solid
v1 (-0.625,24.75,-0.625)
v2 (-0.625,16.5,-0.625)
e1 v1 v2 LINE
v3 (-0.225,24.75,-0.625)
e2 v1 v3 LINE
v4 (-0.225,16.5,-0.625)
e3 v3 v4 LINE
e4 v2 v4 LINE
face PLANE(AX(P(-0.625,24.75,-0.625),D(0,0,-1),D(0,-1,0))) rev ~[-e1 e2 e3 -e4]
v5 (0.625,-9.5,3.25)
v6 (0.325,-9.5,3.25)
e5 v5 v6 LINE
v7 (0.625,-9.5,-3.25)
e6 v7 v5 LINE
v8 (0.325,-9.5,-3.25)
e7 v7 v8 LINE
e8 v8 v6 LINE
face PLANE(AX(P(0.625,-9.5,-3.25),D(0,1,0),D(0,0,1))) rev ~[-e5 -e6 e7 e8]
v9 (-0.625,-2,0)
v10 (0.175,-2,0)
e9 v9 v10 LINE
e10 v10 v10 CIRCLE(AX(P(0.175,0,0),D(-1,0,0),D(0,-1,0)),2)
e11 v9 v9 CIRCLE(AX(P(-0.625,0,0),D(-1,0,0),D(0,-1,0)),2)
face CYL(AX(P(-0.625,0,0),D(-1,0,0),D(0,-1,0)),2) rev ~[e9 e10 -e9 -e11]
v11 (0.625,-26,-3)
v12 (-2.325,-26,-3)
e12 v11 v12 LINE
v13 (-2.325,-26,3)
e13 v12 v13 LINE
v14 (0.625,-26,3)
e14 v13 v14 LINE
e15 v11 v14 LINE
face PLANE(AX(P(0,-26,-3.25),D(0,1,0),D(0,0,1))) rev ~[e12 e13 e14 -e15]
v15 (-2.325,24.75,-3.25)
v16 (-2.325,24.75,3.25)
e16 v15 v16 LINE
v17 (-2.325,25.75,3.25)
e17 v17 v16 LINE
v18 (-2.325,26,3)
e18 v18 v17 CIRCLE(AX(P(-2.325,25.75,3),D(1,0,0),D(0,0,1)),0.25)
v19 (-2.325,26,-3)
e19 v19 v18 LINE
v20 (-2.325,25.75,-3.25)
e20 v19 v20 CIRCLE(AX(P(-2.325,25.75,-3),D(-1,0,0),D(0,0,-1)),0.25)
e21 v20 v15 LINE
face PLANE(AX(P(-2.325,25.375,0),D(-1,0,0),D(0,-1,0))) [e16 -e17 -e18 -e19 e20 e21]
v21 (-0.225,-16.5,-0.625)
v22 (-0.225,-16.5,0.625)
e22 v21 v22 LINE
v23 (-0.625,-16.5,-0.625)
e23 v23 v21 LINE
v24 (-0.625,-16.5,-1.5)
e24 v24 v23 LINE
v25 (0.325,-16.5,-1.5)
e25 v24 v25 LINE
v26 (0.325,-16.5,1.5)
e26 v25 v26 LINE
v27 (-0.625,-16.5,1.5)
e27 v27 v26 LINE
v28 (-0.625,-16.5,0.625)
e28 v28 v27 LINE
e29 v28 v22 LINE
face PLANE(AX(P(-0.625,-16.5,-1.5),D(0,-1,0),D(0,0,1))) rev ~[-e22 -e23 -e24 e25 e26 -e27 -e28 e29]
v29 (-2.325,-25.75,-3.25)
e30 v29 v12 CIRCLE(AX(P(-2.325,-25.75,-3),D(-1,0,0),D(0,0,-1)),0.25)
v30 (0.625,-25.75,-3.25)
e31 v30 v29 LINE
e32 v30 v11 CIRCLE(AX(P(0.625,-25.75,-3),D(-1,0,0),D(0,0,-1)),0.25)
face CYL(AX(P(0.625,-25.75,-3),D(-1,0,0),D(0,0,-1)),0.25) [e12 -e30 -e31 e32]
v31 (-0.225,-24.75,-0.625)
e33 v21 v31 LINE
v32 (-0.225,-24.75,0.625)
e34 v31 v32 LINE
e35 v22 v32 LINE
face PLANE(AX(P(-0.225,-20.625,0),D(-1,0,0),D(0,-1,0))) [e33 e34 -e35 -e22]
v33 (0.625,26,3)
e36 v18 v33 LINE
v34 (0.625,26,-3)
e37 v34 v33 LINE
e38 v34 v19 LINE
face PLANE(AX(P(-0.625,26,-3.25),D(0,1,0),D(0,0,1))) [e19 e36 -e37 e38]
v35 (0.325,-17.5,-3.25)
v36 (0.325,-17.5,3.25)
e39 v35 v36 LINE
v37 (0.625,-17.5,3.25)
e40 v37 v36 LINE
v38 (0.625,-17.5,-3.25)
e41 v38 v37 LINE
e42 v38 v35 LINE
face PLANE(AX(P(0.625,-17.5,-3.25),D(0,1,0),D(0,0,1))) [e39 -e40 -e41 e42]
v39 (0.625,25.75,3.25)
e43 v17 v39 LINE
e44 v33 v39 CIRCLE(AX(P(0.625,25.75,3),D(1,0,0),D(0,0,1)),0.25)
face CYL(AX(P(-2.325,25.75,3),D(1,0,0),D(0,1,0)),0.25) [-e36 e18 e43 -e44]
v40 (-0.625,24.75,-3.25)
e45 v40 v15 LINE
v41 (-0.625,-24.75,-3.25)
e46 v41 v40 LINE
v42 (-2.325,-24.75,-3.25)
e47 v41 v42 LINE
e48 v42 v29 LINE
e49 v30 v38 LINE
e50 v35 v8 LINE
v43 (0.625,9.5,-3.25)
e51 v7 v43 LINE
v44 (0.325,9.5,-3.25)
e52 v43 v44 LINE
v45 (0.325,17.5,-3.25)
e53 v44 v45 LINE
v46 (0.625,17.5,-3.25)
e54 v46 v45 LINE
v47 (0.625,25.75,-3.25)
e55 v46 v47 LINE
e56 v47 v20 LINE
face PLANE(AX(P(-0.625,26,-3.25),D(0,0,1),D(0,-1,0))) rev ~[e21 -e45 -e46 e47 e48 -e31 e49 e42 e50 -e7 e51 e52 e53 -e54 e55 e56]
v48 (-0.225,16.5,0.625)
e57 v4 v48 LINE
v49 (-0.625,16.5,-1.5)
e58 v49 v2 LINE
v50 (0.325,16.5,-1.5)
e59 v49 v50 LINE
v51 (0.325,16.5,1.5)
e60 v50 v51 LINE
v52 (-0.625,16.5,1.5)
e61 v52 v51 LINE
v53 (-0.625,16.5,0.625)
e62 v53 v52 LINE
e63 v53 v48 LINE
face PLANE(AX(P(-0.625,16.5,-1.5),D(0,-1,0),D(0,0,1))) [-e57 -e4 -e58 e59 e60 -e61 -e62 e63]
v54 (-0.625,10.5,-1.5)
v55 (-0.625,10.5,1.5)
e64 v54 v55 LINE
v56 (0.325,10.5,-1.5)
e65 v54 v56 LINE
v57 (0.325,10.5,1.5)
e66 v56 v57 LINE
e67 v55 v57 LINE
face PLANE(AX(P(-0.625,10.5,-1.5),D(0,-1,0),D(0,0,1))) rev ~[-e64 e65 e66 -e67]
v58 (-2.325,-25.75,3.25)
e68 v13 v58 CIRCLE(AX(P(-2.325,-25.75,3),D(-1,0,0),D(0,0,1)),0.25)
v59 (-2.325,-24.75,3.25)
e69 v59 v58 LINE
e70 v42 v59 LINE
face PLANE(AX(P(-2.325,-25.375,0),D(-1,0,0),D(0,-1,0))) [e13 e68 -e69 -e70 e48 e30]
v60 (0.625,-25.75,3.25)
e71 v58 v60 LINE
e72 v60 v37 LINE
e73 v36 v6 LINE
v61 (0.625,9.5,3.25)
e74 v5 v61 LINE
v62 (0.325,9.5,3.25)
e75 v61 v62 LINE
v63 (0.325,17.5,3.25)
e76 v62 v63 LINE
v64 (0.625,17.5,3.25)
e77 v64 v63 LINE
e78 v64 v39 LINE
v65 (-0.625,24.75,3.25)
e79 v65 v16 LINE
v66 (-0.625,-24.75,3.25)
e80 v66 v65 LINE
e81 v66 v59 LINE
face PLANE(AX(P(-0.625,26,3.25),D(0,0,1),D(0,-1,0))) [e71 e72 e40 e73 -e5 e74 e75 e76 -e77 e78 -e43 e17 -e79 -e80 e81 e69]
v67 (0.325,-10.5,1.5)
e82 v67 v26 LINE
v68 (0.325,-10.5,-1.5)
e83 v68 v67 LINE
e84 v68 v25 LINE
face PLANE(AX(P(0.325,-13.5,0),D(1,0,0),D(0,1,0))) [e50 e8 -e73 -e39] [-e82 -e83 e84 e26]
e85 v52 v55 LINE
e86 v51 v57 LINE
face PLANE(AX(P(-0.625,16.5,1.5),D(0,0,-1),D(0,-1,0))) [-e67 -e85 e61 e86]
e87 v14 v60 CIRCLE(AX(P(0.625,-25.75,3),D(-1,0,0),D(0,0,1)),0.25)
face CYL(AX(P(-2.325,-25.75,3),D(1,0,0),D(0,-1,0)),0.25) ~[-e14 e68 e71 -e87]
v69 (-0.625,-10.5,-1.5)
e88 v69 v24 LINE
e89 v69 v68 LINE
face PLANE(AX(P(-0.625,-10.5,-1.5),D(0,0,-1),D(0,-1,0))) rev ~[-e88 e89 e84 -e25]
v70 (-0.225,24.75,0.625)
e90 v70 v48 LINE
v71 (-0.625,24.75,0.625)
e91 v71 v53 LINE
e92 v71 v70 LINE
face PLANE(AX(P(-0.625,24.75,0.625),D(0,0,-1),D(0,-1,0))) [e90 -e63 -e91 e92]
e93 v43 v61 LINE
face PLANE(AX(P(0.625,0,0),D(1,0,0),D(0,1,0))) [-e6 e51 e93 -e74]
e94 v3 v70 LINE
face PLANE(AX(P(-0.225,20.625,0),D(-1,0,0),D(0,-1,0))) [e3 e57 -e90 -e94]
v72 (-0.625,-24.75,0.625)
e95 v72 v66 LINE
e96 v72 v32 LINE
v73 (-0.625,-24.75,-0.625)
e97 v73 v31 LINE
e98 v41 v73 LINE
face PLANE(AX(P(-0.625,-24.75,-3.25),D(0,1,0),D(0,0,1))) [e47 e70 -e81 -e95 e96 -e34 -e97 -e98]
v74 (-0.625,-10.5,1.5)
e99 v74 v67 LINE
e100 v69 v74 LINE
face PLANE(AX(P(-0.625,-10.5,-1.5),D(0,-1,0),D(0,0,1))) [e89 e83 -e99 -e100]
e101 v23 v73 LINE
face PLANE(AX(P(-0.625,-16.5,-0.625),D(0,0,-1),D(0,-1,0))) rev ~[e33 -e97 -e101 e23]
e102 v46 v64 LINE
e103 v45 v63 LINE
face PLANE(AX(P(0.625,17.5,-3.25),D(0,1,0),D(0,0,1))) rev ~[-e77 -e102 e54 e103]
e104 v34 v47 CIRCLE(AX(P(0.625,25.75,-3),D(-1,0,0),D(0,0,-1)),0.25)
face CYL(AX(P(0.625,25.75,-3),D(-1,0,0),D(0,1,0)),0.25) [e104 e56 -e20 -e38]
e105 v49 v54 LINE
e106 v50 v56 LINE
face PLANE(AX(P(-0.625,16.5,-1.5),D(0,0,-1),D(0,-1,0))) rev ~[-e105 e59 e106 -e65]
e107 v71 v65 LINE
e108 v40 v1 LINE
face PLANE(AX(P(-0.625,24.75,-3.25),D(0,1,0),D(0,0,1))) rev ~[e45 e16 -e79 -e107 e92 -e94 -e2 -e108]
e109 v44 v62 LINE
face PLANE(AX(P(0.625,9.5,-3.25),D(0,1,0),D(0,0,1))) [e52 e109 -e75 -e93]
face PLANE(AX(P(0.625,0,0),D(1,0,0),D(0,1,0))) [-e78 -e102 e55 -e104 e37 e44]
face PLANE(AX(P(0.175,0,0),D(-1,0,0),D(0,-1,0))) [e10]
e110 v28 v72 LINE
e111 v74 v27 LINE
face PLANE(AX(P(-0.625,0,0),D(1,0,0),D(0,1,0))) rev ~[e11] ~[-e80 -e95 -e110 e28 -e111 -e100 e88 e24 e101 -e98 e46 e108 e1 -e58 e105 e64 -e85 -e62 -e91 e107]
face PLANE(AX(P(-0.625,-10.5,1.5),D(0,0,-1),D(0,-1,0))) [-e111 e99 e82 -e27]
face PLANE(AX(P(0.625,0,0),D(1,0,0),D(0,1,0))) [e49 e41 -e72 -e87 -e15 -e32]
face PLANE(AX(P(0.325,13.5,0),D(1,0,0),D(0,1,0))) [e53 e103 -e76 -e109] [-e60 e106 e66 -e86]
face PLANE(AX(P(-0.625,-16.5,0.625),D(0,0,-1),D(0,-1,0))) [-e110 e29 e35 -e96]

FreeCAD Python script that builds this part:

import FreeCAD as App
import Part
import Sketcher

V = App.Vector
Q = App.Units.Quantity


def edges_at(feature, points):
    """Names of the edges that pass closest to the given points."""
    edges = feature.Shape.Edges
    near = lambda p: min(range(len(edges)), key=lambda i: edges[i].distToShape(Part.Vertex(*p))[0])
    return sorted({f"Edge{near(p) + 1}" for p in points})

doc = App.newDocument("Part")
body = doc.addObject("PartDesign::Body", "Body")

# Sketch on YZ plane
sketch1 = doc.addObject("Sketcher::SketchObject", "Sketch")
body.addObject(sketch1)
sketch1.AttachmentSupport = (doc.YZ_Plane, [""])
sketch1.MapMode = "FlatFace"
sketch1.addGeometry(Part.LineSegment(V(-26, 3.25, 0), V(-26, -3.25, 0)), False)
sketch1.addGeometry(Part.LineSegment(V(-26, -3.25, 0), V(26, -3.25, 0)), False)
sketch1.addGeometry(Part.LineSegment(V(26, -3.25, 0), V(26, 3.25, 0)), False)
sketch1.addGeometry(Part.LineSegment(V(26, 3.25, 0), V(-26, 3.25, 0)), False)
sketch1.addConstraint(Sketcher.Constraint("Coincident", 0, 2, 1, 1))
sketch1.addConstraint(Sketcher.Constraint("Coincident", 1, 2, 2, 1))
sketch1.addConstraint(Sketcher.Constraint("Coincident", 2, 2, 3, 1))
sketch1.addConstraint(Sketcher.Constraint("Coincident", 3, 2, 0, 1))
sketch1.addConstraint(Sketcher.Constraint("Vertical", 0))
sketch1.addConstraint(Sketcher.Constraint("Horizontal", 1))
sketch1.addConstraint(Sketcher.Constraint("Vertical", 2))
sketch1.addConstraint(Sketcher.Constraint("Horizontal", 3))
sketch1.addConstraint(Sketcher.Constraint("Symmetric", 0, 2, 2, 2, -1, 1))
sketch1.addConstraint(Sketcher.Constraint("DistanceX", 1, 1, 1, 2, Q("52 mm")))
sketch1.addConstraint(Sketcher.Constraint("DistanceY", 0, 2, 0, 1, Q("6.5 mm")))
pad1 = doc.addObject("PartDesign::Pad", "Pad")
body.addObject(pad1)
pad1.Profile = sketch1
pad1.Length = 1.25
pad1.Midplane = True

# Sketch on YZ plane
sketch2 = doc.addObject("Sketcher::SketchObject", "Sketch001")
body.addObject(sketch2)
sketch2.AttachmentSupport = (doc.YZ_Plane, [""])
sketch2.MapMode = "FlatFace"
sketch2.AttachmentOffset = App.Placement(V(0, 0, -0.625), App.Rotation())
sketch2.addGeometry(Part.LineSegment(V(26, 3.25, 0), V(26, -3.25, 0)), False)
sketch2.addGeometry(Part.LineSegment(V(26, -3.25, 0), V(24.75, -3.25, 0)), False)
sketch2.addGeometry(Part.LineSegment(V(24.75, -3.25, 0), V(24.75, 3.25, 0)), False)
sketch2.addGeometry(Part.LineSegment(V(24.75, 3.25, 0), V(26, 3.25, 0)), False)
sketch2.addGeometry(Part.LineSegment(V(-24.75, 3.25, 0), V(-24.75, -3.25, 0)), False)
sketch2.addGeometry(Part.LineSegment(V(-24.75, -3.25, 0), V(-26, -3.25, 0)), False)
sketch2.addGeometry(Part.LineSegment(V(-26, -3.25, 0), V(-26, 3.25, 0)), False)
sketch2.addGeometry(Part.LineSegment(V(-26, 3.25, 0), V(-24.75, 3.25, 0)), False)
sketch2.addConstraint(Sketcher.Constraint("Coincident", 0, 2, 1, 1))
sketch2.addConstraint(Sketcher.Constraint("Coincident", 1, 2, 2, 1))
sketch2.addConstraint(Sketcher.Constraint("Coincident", 2, 2, 3, 1))
sketch2.addConstraint(Sketcher.Constraint("Coincident", 3, 2, 0, 1))
sketch2.addConstraint(Sketcher.Constraint("Coincident", 4, 2, 5, 1))
sketch2.addConstraint(Sketcher.Constraint("Coincident", 5, 2, 6, 1))
sketch2.addConstraint(Sketcher.Constraint("Coincident", 6, 2, 7, 1))
sketch2.addConstraint(Sketcher.Constraint("Coincident", 7, 2, 4, 1))
sketch2.addConstraint(Sketcher.Constraint("Vertical", 0))
sketch2.addConstraint(Sketcher.Constraint("Horizontal", 1))
sketch2.addConstraint(Sketcher.Constraint("Vertical", 2))
sketch2.addConstraint(Sketcher.Constraint("Horizontal", 3))
sketch2.addConstraint(Sketcher.Constraint("Vertical", 4))
sketch2.addConstraint(Sketcher.Constraint("Horizontal", 5))
sketch2.addConstraint(Sketcher.Constraint("Vertical", 6))
sketch2.addConstraint(Sketcher.Constraint("Horizontal", 7))
sketch2.addConstraint(Sketcher.Constraint("Symmetric", 2, 2, 4, 2, -1, 1))
sketch2.addConstraint(Sketcher.Constraint("Symmetric", 0, 2, 6, 2, -1, 1))
sketch2.addConstraint(Sketcher.Constraint("Horizontal", 1, 2, 4, 2))
sketch2.addConstraint(Sketcher.Constraint("DistanceY", 0, 2, 0, 1, Q("6.5 mm")))
sketch2.addConstraint(Sketcher.Constraint("DistanceX", -1, 1, 0, 2, Q("26 mm")))
sketch2.addConstraint(Sketcher.Constraint("DistanceX", 1, 2, 1, 1, Q("1.25 mm")))
pad2 = doc.addObject("PartDesign::Pad", "Pad001")
body.addObject(pad2)
pad2.Profile = sketch2
pad2.Length = 1.7
pad2.Reversed = True
doc.recompute()

fillet = doc.addObject("PartDesign::Fillet", "Fillet")
body.addObject(fillet)
fillet.Base = (pad2, edges_at(pad2, [
    (-0.85, -26, 3.25),
    (-0.85, -26, -3.25),
    (-0.85, 26, 3.25),
    (-0.85, 26, -3.25),
]))
fillet.Radius = 0.25

# Sketch on YZ plane
sketch3 = doc.addObject("Sketcher::SketchObject", "Sketch002")
body.addObject(sketch3)
sketch3.AttachmentSupport = (doc.YZ_Plane, [""])
sketch3.MapMode = "FlatFace"
sketch3.AttachmentOffset = App.Placement(V(0, 0, -0.625), App.Rotation())
sketch3.addGeometry(Part.Circle(V(0, 0, 0), V(0, 0, 1), 2), False)
sketch3.addConstraint(Sketcher.Constraint("Coincident", 0, 3, -1, 1))
sketch3.addConstraint(Sketcher.Constraint("Diameter", 0, Q("4 mm")))
pocket1 = doc.addObject("PartDesign::Pocket", "Pocket")
body.addObject(pocket1)
pocket1.Profile = sketch3
pocket1.Length = 0.8
pocket1.Reversed = True

# Sketch on YZ plane
sketch4 = doc.addObject("Sketcher::SketchObject", "Sketch003")
body.addObject(sketch4)
sketch4.AttachmentSupport = (doc.YZ_Plane, [""])
sketch4.MapMode = "FlatFace"
sketch4.AttachmentOffset = App.Placement(V(0, 0, 0.625), App.Rotation())
sketch4.addGeometry(Part.LineSegment(V(-17.5, 3.25, 0), V(-17.5, -3.25, 0)), False)
sketch4.addGeometry(Part.LineSegment(V(-17.5, -3.25, 0), V(-9.5, -3.25, 0)), False)
sketch4.addGeometry(Part.LineSegment(V(-9.5, -3.25, 0), V(-9.5, 3.25, 0)), False)
sketch4.addGeometry(Part.LineSegment(V(-9.5, 3.25, 0), V(-17.5, 3.25, 0)), False)
sketch4.addGeometry(Part.LineSegment(V(9.5, 3.25, 0), V(9.5, -3.25, 0)), False)
sketch4.addGeometry(Part.LineSegment(V(9.5, -3.25, 0), V(17.5, -3.25, 0)), False)
sketch4.addGeometry(Part.LineSegment(V(17.5, -3.25, 0), V(17.5, 3.25, 0)), False)
sketch4.addGeometry(Part.LineSegment(V(17.5, 3.25, 0), V(9.5, 3.25, 0)), False)
sketch4.addConstraint(Sketcher.Constraint("Coincident", 0, 2, 1, 1))
sketch4.addConstraint(Sketcher.Constraint("Coincident", 1, 2, 2, 1))
sketch4.addConstraint(Sketcher.Constraint("Coincident", 2, 2, 3, 1))
sketch4.addConstraint(Sketcher.Constraint("Coincident", 3, 2, 0, 1))
sketch4.addConstraint(Sketcher.Constraint("Coincident", 4, 2, 5, 1))
sketch4.addConstraint(Sketcher.Constraint("Coincident", 5, 2, 6, 1))
sketch4.addConstraint(Sketcher.Constraint("Coincident", 6, 2, 7, 1))
sketch4.addConstraint(Sketcher.Constraint("Coincident", 7, 2, 4, 1))
sketch4.addConstraint(Sketcher.Constraint("Vertical", 0))
sketch4.addConstraint(Sketcher.Constraint("Horizontal", 1))
sketch4.addConstraint(Sketcher.Constraint("Vertical", 2))
sketch4.addConstraint(Sketcher.Constraint("Horizontal", 3))
sketch4.addConstraint(Sketcher.Constraint("Vertical", 4))
sketch4.addConstraint(Sketcher.Constraint("Horizontal", 5))
sketch4.addConstraint(Sketcher.Constraint("Vertical", 6))
sketch4.addConstraint(Sketcher.Constraint("Horizontal", 7))
sketch4.addConstraint(Sketcher.Constraint("Symmetric", 2, 2, 4, 2, -1, 1))
sketch4.addConstraint(Sketcher.Constraint("Symmetric", 0, 2, 6, 2, -1, 1))
sketch4.addConstraint(Sketcher.Constraint("Horizontal", 1, 2, 4, 2))
sketch4.addConstraint(Sketcher.Constraint("DistanceX", 1, 1, 1, 2, Q("8 mm")))
sketch4.addConstraint(Sketcher.Constraint("DistanceY", 0, 2, 0, 1, Q("6.5 mm")))
sketch4.addConstraint(Sketcher.Constraint("DistanceX", 1, 2, 4, 2, Q("19 mm")))
pocket2 = doc.addObject("PartDesign::Pocket", "Pocket001")
body.addObject(pocket2)
pocket2.Profile = sketch4
pocket2.Length = 0.3

# Sketch on YZ plane
sketch5 = doc.addObject("Sketcher::SketchObject", "Sketch004")
body.addObject(sketch5)
sketch5.AttachmentSupport = (doc.YZ_Plane, [""])
sketch5.MapMode = "FlatFace"
sketch5.AttachmentOffset = App.Placement(V(0, 0, -0.625), App.Rotation())
sketch5.addGeometry(Part.LineSegment(V(-10.5, 1.5, 0), V(-10.5, -1.5, 0)), False)
sketch5.addGeometry(Part.LineSegment(V(-10.5, -1.5, 0), V(-16.5, -1.5, 0)), False)
sketch5.addGeometry(Part.LineSegment(V(-16.5, -1.5, 0), V(-16.5, 1.5, 0)), False)
sketch5.addGeometry(Part.LineSegment(V(-16.5, 1.5, 0), V(-10.5, 1.5, 0)), False)
sketch5.addGeometry(Part.LineSegment(V(16.5, 1.5, 0), V(16.5, -1.5, 0)), False)
sketch5.addGeometry(Part.LineSegment(V(16.5, -1.5, 0), V(10.5, -1.5, 0)), False)
sketch5.addGeometry(Part.LineSegment(V(10.5, -1.5, 0), V(10.5, 1.5, 0)), False)
sketch5.addGeometry(Part.LineSegment(V(10.5, 1.5, 0), V(16.5, 1.5, 0)), False)
sketch5.addConstraint(Sketcher.Constraint("Coincident", 0, 2, 1, 1))
sketch5.addConstraint(Sketcher.Constraint("Coincident", 1, 2, 2, 1))
sketch5.addConstraint(Sketcher.Constraint("Coincident", 2, 2, 3, 1))
sketch5.addConstraint(Sketcher.Constraint("Coincident", 3, 2, 0, 1))
sketch5.addConstraint(Sketcher.Constraint("Coincident", 4, 2, 5, 1))
sketch5.addConstraint(Sketcher.Constraint("Coincident", 5, 2, 6, 1))
sketch5.addConstraint(Sketcher.Constraint("Coincident", 6, 2, 7, 1))
sketch5.addConstraint(Sketcher.Constraint("Coincident", 7, 2, 4, 1))
sketch5.addConstraint(Sketcher.Constraint("Vertical", 0))
sketch5.addConstraint(Sketcher.Constraint("Horizontal", 1))
sketch5.addConstraint(Sketcher.Constraint("Vertical", 2))
sketch5.addConstraint(Sketcher.Constraint("Horizontal", 3))
sketch5.addConstraint(Sketcher.Constraint("Vertical", 4))
sketch5.addConstraint(Sketcher.Constraint("Horizontal", 5))
sketch5.addConstraint(Sketcher.Constraint("Vertical", 6))
sketch5.addConstraint(Sketcher.Constraint("Horizontal", 7))
sketch5.addConstraint(Sketcher.Constraint("Symmetric", 2, 2, 4, 2, -1, 1))
sketch5.addConstraint(Sketcher.Constraint("Symmetric", 0, 2, 6, 2, -1, 1))
sketch5.addConstraint(Sketcher.Constraint("Horizontal", 1, 2, 4, 2))
sketch5.addConstraint(Sketcher.Constraint("DistanceX", 1, 2, 1, 1, Q("6 mm")))
sketch5.addConstraint(Sketcher.Constraint("DistanceY", 0, 2, 0, 1, Q("3 mm")))
sketch5.addConstraint(Sketcher.Constraint("DistanceX", 0, 2, 4, 2, Q("27 mm")))
pocket3 = doc.addObject("PartDesign::Pocket", "Pocket002")
body.addObject(pocket3)
pocket3.Profile = sketch5
pocket3.Type = "ThroughAll"
pocket3.Reversed = True

# Sketch on YZ plane
sketch6 = doc.addObject("Sketcher::SketchObject", "Sketch005")
body.addObject(sketch6)
sketch6.AttachmentSupport = (doc.YZ_Plane, [""])
sketch6.MapMode = "FlatFace"
sketch6.AttachmentOffset = App.Placement(V(0, 0, -0.625), App.Rotation())
sketch6.addGeometry(Part.LineSegment(V(24.75, 0.625, 0), V(24.75, -0.625, 0)), False)
sketch6.addGeometry(Part.LineSegment(V(24.75, -0.625, 0), V(16.5, -0.625, 0)), False)
sketch6.addGeometry(Part.LineSegment(V(16.5, -0.625, 0), V(16.5, 0.625, 0)), False)
sketch6.addGeometry(Part.LineSegment(V(16.5, 0.625, 0), V(24.75, 0.625, 0)), False)
sketch6.addGeometry(Part.LineSegment(V(-16.5, 0.625, 0), V(-16.5, -0.625, 0)), False)
sketch6.addGeometry(Part.LineSegment(V(-16.5, -0.625, 0), V(-24.75, -0.625, 0)), False)
sketch6.addGeometry(Part.LineSegment(V(-24.75, -0.625, 0), V(-24.75, 0.625, 0)), False)
sketch6.addGeometry(Part.LineSegment(V(-24.75, 0.625, 0), V(-16.5, 0.625, 0)), False)
sketch6.addConstraint(Sketcher.Constraint("Coincident", 0, 2, 1, 1))
sketch6.addConstraint(Sketcher.Constraint("Coincident", 1, 2, 2, 1))
sketch6.addConstraint(Sketcher.Constraint("Coincident", 2, 2, 3, 1))
sketch6.addConstraint(Sketcher.Constraint("Coincident", 3, 2, 0, 1))
sketch6.addConstraint(Sketcher.Constraint("Coincident", 4, 2, 5, 1))
sketch6.addConstraint(Sketcher.Constraint("Coincident", 5, 2, 6, 1))
sketch6.addConstraint(Sketcher.Constraint("Coincident", 6, 2, 7, 1))
sketch6.addConstraint(Sketcher.Constraint("Coincident", 7, 2, 4, 1))
sketch6.addConstraint(Sketcher.Constraint("Vertical", 0))
sketch6.addConstraint(Sketcher.Constraint("Horizontal", 1))
sketch6.addConstraint(Sketcher.Constraint("Vertical", 2))
sketch6.addConstraint(Sketcher.Constraint("Horizontal", 3))
sketch6.addConstraint(Sketcher.Constraint("Vertical", 4))
sketch6.addConstraint(Sketcher.Constraint("Horizontal", 5))
sketch6.addConstraint(Sketcher.Constraint("Vertical", 6))
sketch6.addConstraint(Sketcher.Constraint("Horizontal", 7))
sketch6.addConstraint(Sketcher.Constraint("Symmetric", 2, 2, 4, 2, -1, 1))
sketch6.addConstraint(Sketcher.Constraint("Symmetric", 0, 2, 6, 2, -1, 1))
sketch6.addConstraint(Sketcher.Constraint("Horizontal", 1, 2, 4, 2))
sketch6.addConstraint(Sketcher.Constraint("DistanceX", 4, 2, 1, 2, Q("33 mm")))
sketch6.addConstraint(Sketcher.Constraint("DistanceX", 1, 2, 1, 1, Q("8.25 mm")))
sketch6.addConstraint(Sketcher.Constraint("DistanceY", 0, 2, 0, 1, Q("1.25 mm")))
pocket4 = doc.addObject("PartDesign::Pocket", "Pocket003")
body.addObject(pocket4)
pocket4.Profile = sketch6
pocket4.Length = 0.4
pocket4.Reversed = True

doc.recompute()
